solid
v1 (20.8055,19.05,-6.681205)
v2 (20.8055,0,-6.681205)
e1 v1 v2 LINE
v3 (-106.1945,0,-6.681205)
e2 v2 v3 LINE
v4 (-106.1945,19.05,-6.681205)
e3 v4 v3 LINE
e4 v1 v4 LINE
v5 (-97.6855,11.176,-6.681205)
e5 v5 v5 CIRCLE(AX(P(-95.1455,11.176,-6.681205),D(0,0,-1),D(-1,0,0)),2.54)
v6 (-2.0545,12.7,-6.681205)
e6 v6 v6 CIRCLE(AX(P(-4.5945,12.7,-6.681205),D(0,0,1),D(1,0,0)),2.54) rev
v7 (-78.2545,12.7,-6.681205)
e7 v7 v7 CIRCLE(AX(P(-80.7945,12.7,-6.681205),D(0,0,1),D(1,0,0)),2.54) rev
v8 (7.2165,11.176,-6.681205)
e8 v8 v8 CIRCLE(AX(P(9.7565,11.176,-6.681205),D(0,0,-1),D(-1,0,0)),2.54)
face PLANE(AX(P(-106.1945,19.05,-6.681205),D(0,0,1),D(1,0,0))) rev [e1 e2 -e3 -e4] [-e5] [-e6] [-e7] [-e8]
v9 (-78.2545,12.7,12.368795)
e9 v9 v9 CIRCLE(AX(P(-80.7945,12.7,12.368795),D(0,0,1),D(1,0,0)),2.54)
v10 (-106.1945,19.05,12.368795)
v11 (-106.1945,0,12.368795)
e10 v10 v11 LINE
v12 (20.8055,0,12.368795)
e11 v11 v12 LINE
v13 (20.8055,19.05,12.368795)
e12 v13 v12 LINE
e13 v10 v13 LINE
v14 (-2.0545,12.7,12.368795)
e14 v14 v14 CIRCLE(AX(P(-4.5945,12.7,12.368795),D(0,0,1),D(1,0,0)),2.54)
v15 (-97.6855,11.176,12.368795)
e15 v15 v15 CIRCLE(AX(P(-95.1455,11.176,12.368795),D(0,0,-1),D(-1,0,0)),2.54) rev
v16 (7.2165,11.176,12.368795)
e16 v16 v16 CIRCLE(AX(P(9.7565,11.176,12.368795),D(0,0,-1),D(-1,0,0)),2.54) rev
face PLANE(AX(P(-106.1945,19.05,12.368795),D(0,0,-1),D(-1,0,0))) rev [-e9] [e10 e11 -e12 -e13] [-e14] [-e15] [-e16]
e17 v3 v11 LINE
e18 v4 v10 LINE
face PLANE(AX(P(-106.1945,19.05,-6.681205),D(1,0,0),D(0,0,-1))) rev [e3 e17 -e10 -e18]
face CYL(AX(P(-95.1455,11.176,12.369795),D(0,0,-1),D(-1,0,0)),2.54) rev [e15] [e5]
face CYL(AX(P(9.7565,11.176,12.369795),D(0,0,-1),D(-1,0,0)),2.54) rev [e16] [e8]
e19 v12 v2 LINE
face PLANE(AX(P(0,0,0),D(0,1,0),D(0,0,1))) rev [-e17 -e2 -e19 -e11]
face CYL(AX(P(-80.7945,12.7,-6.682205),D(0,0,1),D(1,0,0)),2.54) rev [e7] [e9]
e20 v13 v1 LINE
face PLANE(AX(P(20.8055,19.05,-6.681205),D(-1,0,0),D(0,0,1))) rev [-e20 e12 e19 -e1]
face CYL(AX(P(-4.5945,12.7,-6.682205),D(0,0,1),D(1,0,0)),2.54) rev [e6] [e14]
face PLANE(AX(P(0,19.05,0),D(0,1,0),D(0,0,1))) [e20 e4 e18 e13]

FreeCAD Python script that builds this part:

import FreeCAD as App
import Part
import Sketcher

V = App.Vector
Q = App.Units.Quantity

doc = App.newDocument("Part")
body = doc.addObject("PartDesign::Body", "Body")

sketch1 = body.newObject("Sketcher::SketchObject", "Sketch")
sketch1.AttachmentSupport = (doc.getObject("XZ_Plane"), [""])
sketch1.MapMode = "FlatFace"
sketch1.addGeometry([
    Part.LineSegment(V(-106, -7, 0), V(-106, 12, 0)),
    Part.LineSegment(V(-106, 12, 0), V(21, 12, 0)),
    Part.LineSegment(V(21, 12, 0), V(21, -7, 0)),
    Part.LineSegment(V(21, -7, 0), V(-106, -7, 0)),
], False)
sketch1.addConstraint([
    Sketcher.Constraint("Coincident", 0, 2, 1, 1),
    Sketcher.Constraint("Coincident", 1, 2, 2, 1),
    Sketcher.Constraint("Coincident", 2, 2, 3, 1),
    Sketcher.Constraint("Coincident", 3, 2, 0, 1),
    Sketcher.Constraint("Vertical", 0),
    Sketcher.Constraint("Horizontal", 1),
    Sketcher.Constraint("Vertical", 2),
    Sketcher.Constraint("Horizontal", 3),
    Sketcher.Constraint("DistanceX", 1, 1, 1, 2, Q("5 in")),
    Sketcher.Constraint("DistanceY", 0, 1, 0, 2, Q("0.75 in")),
    Sketcher.Constraint("DistanceX", 0, 2, -1, 1, 106.1945),
    Sketcher.Constraint("DistanceY", -1, 1, 0, 2, 12.368795),
])
pad1 = body.newObject("PartDesign::Pad", "Pad")
pad1.Profile = sketch1
pad1.Length = Q("0.75 in")
pad1.Reversed = True

sketch2 = body.newObject("Sketcher::SketchObject", "Sketch001")
sketch2.AttachmentSupport = (doc.getObject("XY_Plane"), [""])
sketch2.MapMode = "FlatFace"
sketch2.AttachmentOffset = App.Placement(V(0, 0, 12.368795), App.Rotation())
sketch2.addGeometry(Part.Circle(V(-4.6, 12.7, 0), V(0, 0, 1), 2.5), False)
sketch2.addConstraint([
    Sketcher.Constraint("Diameter", 0, Q("0.2 in")),
    Sketcher.Constraint("DistanceY", -1, 1, 0, 3, Q("0.5 in")),
    Sketcher.Constraint("DistanceX", 0, 3, -1, 1, 4.5945),
])
pocket1 = body.newObject("PartDesign::Pocket", "Pocket")
pocket1.Profile = sketch2
pocket1.Type = "UpToFirst"

sketch3 = body.newObject("Sketcher::SketchObject", "Sketch002")
sketch3.AttachmentSupport = (doc.getObject("XY_Plane"), [""])
sketch3.MapMode = "FlatFace"
sketch3.AttachmentOffset = App.Placement(V(0, 0, 12.368795), App.Rotation())
sketch3.addGeometry(Part.Circle(V(-80.8, 12.7, 0), V(0, 0, 1), 2.5), False)
sketch3.addConstraint([
    Sketcher.Constraint("Diameter", 0, Q("0.2 in")),
    Sketcher.Constraint("DistanceY", -1, 1, 0, 3, Q("0.5 in")),
    Sketcher.Constraint("DistanceX", 0, 3, -1, 1, 80.7945),
])
pocket2 = body.newObject("PartDesign::Pocket", "Pocket001")
pocket2.Profile = sketch3
pocket2.Type = "UpToFirst"

sketch4 = body.newObject("Sketcher::SketchObject", "Sketch003")
sketch4.AttachmentSupport = (doc.getObject("XY_Plane"), [""])
sketch4.MapMode = "FlatFace"
sketch4.AttachmentOffset = App.Placement(V(0, 0, -6.681205), App.Rotation())
sketch4.addGeometry(Part.Circle(V(-95.1, 11.2, 0), V(0, 0, 1), 2.5), False)
sketch4.addConstraint([
    Sketcher.Constraint("Diameter", 0, Q("0.2 in")),
    Sketcher.Constraint("DistanceY", -1, 1, 0, 3, Q("0.44 in")),
    Sketcher.Constraint("DistanceX", 0, 3, -1, 1, 95.1455),
])
pocket3 = body.newObject("PartDesign::Pocket", "Pocket002")
pocket3.Profile = sketch4
pocket3.Type = "UpToFirst"
pocket3.Reversed = True

sketch5 = body.newObject("Sketcher::SketchObject", "Sketch004")
sketch5.AttachmentSupport = (doc.getObject("XY_Plane"), [""])
sketch5.MapMode = "FlatFace"
sketch5.AttachmentOffset = App.Placement(V(0, 0, -6.681205), App.Rotation())
sketch5.addGeometry(Part.Circle(V(9.8, 11.2, 0), V(0, 0, 1), 2.5), False)
sketch5.addConstraint([
    Sketcher.Constraint("Diameter", 0, Q("0.2 in")),
    Sketcher.Constraint("DistanceY", -1, 1, 0, 3, Q("0.44 in")),
    Sketcher.Constraint("DistanceX", -1, 1, 0, 3, 9.7565),
])
pocket4 = body.newObject("PartDesign::Pocket", "Pocket003")
pocket4.Profile = sketch5
pocket4.Type = "UpToFirst"
pocket4.Reversed = True

doc.recompute()
